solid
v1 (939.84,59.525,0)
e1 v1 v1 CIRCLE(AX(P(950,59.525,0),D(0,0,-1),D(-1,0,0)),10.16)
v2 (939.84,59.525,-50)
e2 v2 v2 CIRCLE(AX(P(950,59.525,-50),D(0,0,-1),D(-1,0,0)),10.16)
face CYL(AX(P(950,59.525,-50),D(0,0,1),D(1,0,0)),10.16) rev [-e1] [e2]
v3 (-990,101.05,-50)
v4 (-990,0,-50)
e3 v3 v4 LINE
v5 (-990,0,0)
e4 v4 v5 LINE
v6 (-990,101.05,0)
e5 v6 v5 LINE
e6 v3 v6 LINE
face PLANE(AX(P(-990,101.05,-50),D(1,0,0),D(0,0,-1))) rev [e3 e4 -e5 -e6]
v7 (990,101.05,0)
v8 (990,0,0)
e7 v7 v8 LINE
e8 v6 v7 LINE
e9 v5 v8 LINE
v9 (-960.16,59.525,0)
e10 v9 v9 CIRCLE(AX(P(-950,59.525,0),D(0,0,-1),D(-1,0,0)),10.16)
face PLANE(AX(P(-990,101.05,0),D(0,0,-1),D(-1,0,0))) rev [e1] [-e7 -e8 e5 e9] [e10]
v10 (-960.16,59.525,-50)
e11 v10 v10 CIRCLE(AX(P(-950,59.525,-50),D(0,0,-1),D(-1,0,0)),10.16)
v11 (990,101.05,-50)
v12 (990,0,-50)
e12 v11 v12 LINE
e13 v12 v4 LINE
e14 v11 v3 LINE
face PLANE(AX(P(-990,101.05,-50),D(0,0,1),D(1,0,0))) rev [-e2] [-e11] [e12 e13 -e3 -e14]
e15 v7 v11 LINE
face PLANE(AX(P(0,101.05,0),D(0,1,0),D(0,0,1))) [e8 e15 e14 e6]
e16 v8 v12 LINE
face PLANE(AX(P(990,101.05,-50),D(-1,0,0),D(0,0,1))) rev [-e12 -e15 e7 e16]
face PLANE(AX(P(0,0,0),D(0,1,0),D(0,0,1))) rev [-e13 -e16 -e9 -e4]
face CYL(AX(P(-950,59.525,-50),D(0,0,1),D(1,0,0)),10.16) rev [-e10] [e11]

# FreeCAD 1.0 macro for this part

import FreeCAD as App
import Part
import Sketcher

V = App.Vector


def add_polygon(sketch, points):
    """Adds a closed chain of lines whose ends are joined by coincident constraints."""
    first, n = sketch.GeometryCount, len(points)
    for a, b in zip(points, points[1:] + points[:1]):
        sketch.addGeometry(Part.LineSegment(App.Vector(*a, 0), App.Vector(*b, 0)), False)
    for i in range(n):
        sketch.addConstraint(Sketcher.Constraint("Coincident", first + i, 2, first + (i + 1) % n, 1))

doc = App.newDocument("Part")
params = doc.addObject("Spreadsheet::Sheet", "Params")
for row, (alias, value) in enumerate([
    ("sketch1_width", "1980 mm"),
    ("sketch1_height", "50 mm"),
    ("pad1_length", "101.05 mm"),
    ("sketch2_diameter", "20.32 mm"),
], start=1):
    params.set(f"A{row}", alias)
    params.set(f"B{row}", "=" + value)
    params.setAlias(f"B{row}", alias)

body = doc.addObject("PartDesign::Body", "Body")

# Sketch on XZ plane
sketch1 = body.newObject("Sketcher::SketchObject", "Sketch")
sketch1.AttachmentSupport = (doc.getObject("XZ_Plane"), [""])
sketch1.MapMode = "FlatFace"
add_polygon(sketch1, [(-990, -50), (-990, 0), (990, 0), (990, -50)])  # lines 0-3
sketch1.addConstraint([
    Sketcher.Constraint("Vertical", 0),
    Sketcher.Constraint("Horizontal", 1),
    Sketcher.Constraint("Vertical", 2),
    Sketcher.Constraint("Horizontal", 3),
    Sketcher.Constraint("Symmetric", 0, 2, 1, 2, -1, 1),
    Sketcher.Constraint("DistanceX", 1, 1, 1, 2, 1980.0),
    Sketcher.Constraint("DistanceY", 0, 1, 0, 2, 50.0),
])
sketch1.setExpression("Constraints[9]", "Params.sketch1_width")
sketch1.setExpression("Constraints[10]", "Params.sketch1_height")
pad1 = body.newObject("PartDesign::Pad", "Pad")
pad1.Profile = sketch1
pad1.setExpression("Length", "Params.pad1_length")
pad1.Reversed = True

# Sketch on XY plane
sketch2 = body.newObject("Sketcher::SketchObject", "Sketch001")
sketch2.AttachmentSupport = (doc.getObject("XY_Plane"), [""])
sketch2.MapMode = "FlatFace"
sketch2.addGeometry([
    Part.Circle(V(-950, 59.525, 0), V(0, 0, 1), 10.16),
    Part.Circle(V(950, 59.525, 0), V(0, 0, 1), 10.16),
], False)
sketch2.addConstraint([
    Sketcher.Constraint("Equal", 0, 1),
    Sketcher.Constraint("Symmetric", 0, 3, 1, 3, -2),
    Sketcher.Constraint("Diameter", 0, 20.32),
    Sketcher.Constraint("DistanceX", 0, 3, -1, 1, 950.0),
    Sketcher.Constraint("DistanceY", -1, 1, 0, 3, 59.525),
])
sketch2.setExpression("Constraints[2]", "Params.sketch2_diameter")
pocket1 = body.newObject("PartDesign::Pocket", "Pocket")
pocket1.Profile = sketch2
pocket1.Type = "ThroughAll"

doc.recompute()
